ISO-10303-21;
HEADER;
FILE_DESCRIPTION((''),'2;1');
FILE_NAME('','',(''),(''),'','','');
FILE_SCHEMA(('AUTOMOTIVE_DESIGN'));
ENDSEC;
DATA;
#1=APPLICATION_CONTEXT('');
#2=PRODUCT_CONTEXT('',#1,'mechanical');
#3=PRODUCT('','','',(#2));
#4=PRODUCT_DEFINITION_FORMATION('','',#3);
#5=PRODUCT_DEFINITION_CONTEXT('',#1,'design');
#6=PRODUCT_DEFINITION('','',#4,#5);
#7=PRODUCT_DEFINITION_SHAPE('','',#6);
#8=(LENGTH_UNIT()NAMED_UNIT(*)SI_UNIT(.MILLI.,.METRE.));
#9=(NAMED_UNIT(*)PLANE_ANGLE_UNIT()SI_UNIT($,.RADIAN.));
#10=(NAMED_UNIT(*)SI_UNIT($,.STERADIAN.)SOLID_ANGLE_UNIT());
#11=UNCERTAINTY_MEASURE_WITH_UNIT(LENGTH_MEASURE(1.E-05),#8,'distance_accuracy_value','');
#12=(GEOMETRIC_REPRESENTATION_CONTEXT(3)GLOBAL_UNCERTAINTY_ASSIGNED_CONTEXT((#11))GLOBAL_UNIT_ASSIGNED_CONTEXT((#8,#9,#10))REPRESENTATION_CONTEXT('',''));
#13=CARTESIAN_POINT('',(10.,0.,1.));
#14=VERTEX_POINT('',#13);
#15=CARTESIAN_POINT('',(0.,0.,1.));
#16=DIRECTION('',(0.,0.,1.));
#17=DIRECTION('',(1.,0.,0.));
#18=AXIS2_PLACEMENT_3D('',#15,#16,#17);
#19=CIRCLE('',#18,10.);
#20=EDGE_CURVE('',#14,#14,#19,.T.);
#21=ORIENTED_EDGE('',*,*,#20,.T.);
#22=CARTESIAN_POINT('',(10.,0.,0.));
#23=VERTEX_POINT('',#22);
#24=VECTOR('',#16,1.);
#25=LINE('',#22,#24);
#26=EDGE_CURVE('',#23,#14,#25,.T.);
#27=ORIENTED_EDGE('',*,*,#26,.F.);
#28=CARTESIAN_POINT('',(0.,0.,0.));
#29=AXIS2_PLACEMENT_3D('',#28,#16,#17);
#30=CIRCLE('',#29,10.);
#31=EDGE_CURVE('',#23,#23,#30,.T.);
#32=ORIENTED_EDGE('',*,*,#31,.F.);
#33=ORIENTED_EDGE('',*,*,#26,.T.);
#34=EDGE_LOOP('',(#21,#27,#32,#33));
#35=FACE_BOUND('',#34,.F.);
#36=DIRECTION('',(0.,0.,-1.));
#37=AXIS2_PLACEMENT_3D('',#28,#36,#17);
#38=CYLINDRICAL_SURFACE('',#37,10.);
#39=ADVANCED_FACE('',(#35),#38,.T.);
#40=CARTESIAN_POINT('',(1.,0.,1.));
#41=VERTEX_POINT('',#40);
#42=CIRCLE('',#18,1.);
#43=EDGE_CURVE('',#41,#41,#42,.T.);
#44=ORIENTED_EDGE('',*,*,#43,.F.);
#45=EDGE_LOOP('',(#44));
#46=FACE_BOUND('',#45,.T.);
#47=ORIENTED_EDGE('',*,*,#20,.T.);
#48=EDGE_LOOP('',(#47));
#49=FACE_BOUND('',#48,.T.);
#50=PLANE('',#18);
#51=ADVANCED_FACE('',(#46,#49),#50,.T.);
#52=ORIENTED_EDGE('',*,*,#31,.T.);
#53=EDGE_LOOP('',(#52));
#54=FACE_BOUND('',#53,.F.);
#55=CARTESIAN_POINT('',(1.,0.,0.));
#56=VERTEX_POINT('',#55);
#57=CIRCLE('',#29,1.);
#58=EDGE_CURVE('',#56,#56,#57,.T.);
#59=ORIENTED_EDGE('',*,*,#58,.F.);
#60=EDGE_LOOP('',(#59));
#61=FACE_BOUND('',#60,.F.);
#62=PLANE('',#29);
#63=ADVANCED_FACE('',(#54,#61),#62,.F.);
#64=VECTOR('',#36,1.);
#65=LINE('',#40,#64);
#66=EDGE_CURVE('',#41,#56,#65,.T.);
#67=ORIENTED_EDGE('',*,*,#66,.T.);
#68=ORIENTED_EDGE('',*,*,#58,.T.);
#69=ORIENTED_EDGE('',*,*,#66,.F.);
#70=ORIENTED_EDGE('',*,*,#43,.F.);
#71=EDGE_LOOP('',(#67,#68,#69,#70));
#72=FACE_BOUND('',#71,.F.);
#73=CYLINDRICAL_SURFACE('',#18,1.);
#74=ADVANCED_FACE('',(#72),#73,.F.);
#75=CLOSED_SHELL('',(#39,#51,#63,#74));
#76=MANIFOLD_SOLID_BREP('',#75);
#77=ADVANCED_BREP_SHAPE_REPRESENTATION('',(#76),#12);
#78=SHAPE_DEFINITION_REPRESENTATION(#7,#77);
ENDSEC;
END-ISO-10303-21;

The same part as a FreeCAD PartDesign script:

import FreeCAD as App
import Part
import Sketcher

V = App.Vector
Q = App.Units.Quantity

doc = App.newDocument("Part")
params = doc.addObject("Spreadsheet::Sheet", "Params")
for row, (alias, value) in enumerate([
    ("sketch1_diameter", "20 mm"),
    ("pad1_length", "1 mm"),
    ("sketch2_diameter", "2 mm"),
    ("pocket1_length", "25.4 mm"),
], start=1):
    params.set(f"A{row}", alias)
    params.set(f"B{row}", "=" + value)
    params.setAlias(f"B{row}", alias)

body = doc.addObject("PartDesign::Body", "Body")

# Sketch on XY plane
sketch1 = body.newObject("Sketcher::SketchObject", "Sketch")
sketch1.AttachmentSupport = (doc.getObject("XY_Plane"), [""])
sketch1.MapMode = "FlatFace"
sketch1.addGeometry(Part.Circle(V(0, 0, 0), V(0, 0, 1), 10), False)
sketch1.addConstraint([
    Sketcher.Constraint("Coincident", 0, 3, -1, 1),
    Sketcher.Constraint("Diameter", 0, Q("20 mm")),
])
sketch1.setExpression("Constraints[1]", "Params.sketch1_diameter")
pad1 = body.newObject("PartDesign::Pad", "Pad")
pad1.Profile = sketch1
pad1.setExpression("Length", "Params.pad1_length")

# Sketch on XY plane
sketch2 = body.newObject("Sketcher::SketchObject", "Sketch001")
sketch2.AttachmentSupport = (doc.getObject("XY_Plane"), [""])
sketch2.MapMode = "FlatFace"
sketch2.AttachmentOffset = App.Placement(V(0, 0, 1), App.Rotation())
sketch2.addGeometry(Part.Circle(V(0, 0, 0), V(0, 0, 1), 1), False)
sketch2.addConstraint([
    Sketcher.Constraint("Coincident", 0, 3, -1, 1),
    Sketcher.Constraint("Diameter", 0, Q("2 mm")),
])
sketch2.setExpression("Constraints[1]", "Params.sketch2_diameter")
pocket1 = body.newObject("PartDesign::Pocket", "Pocket")
pocket1.Profile = sketch2
pocket1.setExpression("Length", "Params.pocket1_length")

doc.recompute()
